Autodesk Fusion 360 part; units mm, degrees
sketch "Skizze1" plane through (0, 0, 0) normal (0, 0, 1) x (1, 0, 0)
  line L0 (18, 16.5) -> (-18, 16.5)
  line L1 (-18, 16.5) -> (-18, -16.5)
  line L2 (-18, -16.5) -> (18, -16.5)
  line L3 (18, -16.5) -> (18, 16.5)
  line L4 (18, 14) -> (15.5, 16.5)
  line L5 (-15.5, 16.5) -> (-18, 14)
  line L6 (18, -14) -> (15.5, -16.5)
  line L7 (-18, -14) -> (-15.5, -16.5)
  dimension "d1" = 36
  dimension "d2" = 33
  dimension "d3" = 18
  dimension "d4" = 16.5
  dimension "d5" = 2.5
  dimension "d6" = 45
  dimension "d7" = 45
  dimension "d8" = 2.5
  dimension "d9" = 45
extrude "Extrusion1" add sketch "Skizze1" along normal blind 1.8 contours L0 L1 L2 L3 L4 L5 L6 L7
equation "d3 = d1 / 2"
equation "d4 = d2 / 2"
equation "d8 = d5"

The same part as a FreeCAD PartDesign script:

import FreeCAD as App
import Part
import Sketcher


def add_polygon(sketch, points):
    """Adds a closed chain of lines whose ends are joined by coincident constraints."""
    first, n = sketch.GeometryCount, len(points)
    for a, b in zip(points, points[1:] + points[:1]):
        sketch.addGeometry(Part.LineSegment(App.Vector(*a, 0), App.Vector(*b, 0)), False)
    for i in range(n):
        sketch.addConstraint(Sketcher.Constraint("Coincident", first + i, 2, first + (i + 1) % n, 1))

doc = App.newDocument("Part")
params = doc.addObject("Spreadsheet::Sheet", "Params")
for row, (alias, value) in enumerate([
    ("pad1_length", "1.8 mm"),
], start=1):
    params.set(f"A{row}", alias)
    params.set(f"B{row}", "=" + value)
    params.setAlias(f"B{row}", alias)

body = doc.addObject("PartDesign::Body", "Body")

sketch1 = body.newObject("Sketcher::SketchObject", "Sketch")
sketch1.AttachmentSupport = (doc.getObject("XY_Plane"), [""])
sketch1.MapMode = "FlatFace"
add_polygon(sketch1, [(18, 14), (15.5, 16.5), (-15.5, 16.5), (-18, 14), (-18, -14), (-15.5, -16.5), (15.5, -16.5), (18, -14)])
sketch1.addConstraint(Sketcher.Constraint("Horizontal", 1))
sketch1.addConstraint(Sketcher.Constraint("Vertical", 3))
sketch1.addConstraint(Sketcher.Constraint("Horizontal", 5))
sketch1.addConstraint(Sketcher.Constraint("Vertical", 7))
sketch1.addConstraint(Sketcher.Constraint("Symmetric", 0, 2, 4, 2, -1, 1))
sketch1.addConstraint(Sketcher.Constraint("Symmetric", 2, 2, 6, 2, -1, 1))
sketch1.addConstraint(Sketcher.Constraint("Perpendicular", 0, 2))
sketch1.addConstraint(Sketcher.Constraint("Perpendicular", 2, 4))
sketch1.addConstraint(Sketcher.Constraint("Perpendicular", 4, 6))
sketch1.addConstraint(Sketcher.Constraint("Horizontal", 3, 2, 6, 2))
sketch1.addConstraint(Sketcher.Constraint("Vertical", 1, 2, 4, 2))
sketch1.addConstraint(Sketcher.Constraint("DistanceX", 2, 2, -1, 1, 18.0))
sketch1.addConstraint(Sketcher.Constraint("DistanceY", 4, 2, 1, 2, 33.0))
sketch1.addConstraint(Sketcher.Constraint("DistanceX", 2, 2, 1, 2, 2.5))
pad1 = body.newObject("PartDesign::Pad", "Pad")
pad1.Profile = sketch1
pad1.setExpression("Length", "Params.pad1_length")

doc.recompute()
